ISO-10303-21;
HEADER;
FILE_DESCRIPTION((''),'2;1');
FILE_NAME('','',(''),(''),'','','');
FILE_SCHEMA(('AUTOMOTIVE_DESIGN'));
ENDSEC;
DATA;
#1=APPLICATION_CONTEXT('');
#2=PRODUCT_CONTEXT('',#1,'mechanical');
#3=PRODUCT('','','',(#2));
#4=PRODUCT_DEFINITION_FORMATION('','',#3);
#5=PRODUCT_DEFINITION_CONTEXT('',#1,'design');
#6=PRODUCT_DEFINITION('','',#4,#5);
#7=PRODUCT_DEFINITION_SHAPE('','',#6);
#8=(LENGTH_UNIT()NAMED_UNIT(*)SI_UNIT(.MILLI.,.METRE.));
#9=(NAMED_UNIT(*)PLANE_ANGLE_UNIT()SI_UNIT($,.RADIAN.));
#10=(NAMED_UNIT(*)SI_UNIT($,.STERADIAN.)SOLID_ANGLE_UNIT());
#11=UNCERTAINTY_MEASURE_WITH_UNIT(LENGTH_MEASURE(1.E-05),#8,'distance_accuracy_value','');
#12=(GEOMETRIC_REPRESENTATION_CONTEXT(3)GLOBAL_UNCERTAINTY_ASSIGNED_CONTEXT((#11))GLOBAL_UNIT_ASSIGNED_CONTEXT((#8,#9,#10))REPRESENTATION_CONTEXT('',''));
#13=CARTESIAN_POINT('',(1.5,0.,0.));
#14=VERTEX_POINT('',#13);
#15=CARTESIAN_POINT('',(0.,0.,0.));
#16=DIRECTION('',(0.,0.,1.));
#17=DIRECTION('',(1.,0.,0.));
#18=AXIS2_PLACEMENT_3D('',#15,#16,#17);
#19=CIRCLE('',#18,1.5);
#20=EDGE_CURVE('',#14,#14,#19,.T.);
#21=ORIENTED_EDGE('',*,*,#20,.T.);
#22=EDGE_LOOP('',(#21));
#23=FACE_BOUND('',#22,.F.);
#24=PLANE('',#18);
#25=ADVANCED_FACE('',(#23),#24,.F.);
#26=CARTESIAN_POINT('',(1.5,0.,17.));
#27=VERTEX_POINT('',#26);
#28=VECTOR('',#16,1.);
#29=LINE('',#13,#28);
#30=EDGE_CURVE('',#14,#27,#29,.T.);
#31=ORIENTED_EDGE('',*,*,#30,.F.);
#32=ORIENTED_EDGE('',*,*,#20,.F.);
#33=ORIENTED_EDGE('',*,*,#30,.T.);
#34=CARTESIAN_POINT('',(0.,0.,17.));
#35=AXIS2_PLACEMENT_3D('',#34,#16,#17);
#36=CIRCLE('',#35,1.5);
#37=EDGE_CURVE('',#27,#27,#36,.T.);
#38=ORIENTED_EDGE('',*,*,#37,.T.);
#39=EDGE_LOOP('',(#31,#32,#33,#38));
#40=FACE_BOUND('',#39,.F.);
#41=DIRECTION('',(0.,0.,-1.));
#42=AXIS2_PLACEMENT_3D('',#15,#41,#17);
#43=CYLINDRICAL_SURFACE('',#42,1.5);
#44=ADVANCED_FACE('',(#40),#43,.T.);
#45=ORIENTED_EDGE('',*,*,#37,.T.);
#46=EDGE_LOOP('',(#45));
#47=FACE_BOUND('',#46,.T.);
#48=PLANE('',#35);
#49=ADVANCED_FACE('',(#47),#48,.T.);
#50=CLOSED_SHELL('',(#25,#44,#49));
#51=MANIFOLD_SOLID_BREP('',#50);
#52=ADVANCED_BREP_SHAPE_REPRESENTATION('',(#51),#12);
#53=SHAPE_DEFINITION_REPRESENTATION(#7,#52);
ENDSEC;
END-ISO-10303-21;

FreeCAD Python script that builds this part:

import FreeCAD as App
import Part
import Sketcher
from FreeCAD import Vector

doc = App.newDocument("Part")
body = doc.addObject("PartDesign::Body", "Body")

# Sketch on XY plane
sketch1 = body.newObject("Sketcher::SketchObject", "Sketch")
sketch1.AttachmentSupport = (doc.getObject("XY_Plane"), [""])
sketch1.MapMode = "FlatFace"
sketch1.addGeometry(Part.Circle(Vector(0, 0, 0), Vector(0, 0, 1), 1.5), False)
sketch1.addConstraint([
    Sketcher.Constraint("Coincident", 0, 3, -1, 1),
    Sketcher.Constraint("Diameter", 0, 3.0),
])
pad1 = body.newObject("PartDesign::Pad", "Pad")
pad1.Profile = sketch1
pad1.Length = 17

doc.recompute()
